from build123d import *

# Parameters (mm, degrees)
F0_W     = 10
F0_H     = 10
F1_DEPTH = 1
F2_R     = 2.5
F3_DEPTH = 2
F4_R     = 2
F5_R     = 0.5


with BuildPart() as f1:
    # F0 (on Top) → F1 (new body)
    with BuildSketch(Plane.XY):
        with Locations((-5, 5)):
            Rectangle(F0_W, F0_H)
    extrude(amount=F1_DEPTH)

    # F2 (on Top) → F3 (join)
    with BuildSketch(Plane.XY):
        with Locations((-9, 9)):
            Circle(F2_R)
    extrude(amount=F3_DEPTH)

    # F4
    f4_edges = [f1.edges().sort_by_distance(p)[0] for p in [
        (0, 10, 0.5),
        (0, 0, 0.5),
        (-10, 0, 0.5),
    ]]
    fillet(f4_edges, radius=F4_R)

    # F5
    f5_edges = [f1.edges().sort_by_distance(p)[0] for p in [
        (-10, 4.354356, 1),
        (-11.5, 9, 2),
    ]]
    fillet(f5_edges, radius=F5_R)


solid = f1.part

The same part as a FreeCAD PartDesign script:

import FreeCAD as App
import Part
import Sketcher
Q = App.Units.Quantity


def edges_at(feature, points):
    """Names of the edges that pass closest to the given points."""
    edges = feature.Shape.Edges
    near = lambda p: min(range(len(edges)), key=lambda i: edges[i].distToShape(Part.Vertex(*p))[0])
    return sorted({f"Edge{near(p) + 1}" for p in points})

doc = App.newDocument("Part")
params = doc.addObject("Spreadsheet::Sheet", "Params")
for row, (alias, value) in enumerate([
    ("sketch1_width", "10 mm"),
    ("pad1_length", "1 mm"),
    ("sketch2_diameter", "5 mm"),
    ("pad2_length", "2 mm"),
    ("fillet_radius", "2 mm"),
    ("fillet2_radius", "0.5 mm"),
], start=1):
    params.set(f"A{row}", alias)
    params.set(f"B{row}", "=" + value)
    params.setAlias(f"B{row}", alias)

body = doc.addObject("PartDesign::Body", "Body")

sketch1 = doc.addObject("Sketcher::SketchObject", "Sketch")
body.addObject(sketch1)
sketch1.AttachmentSupport = (doc.XY_Plane, [""])
sketch1.MapMode = "FlatFace"
sketch1.addGeometry(Part.LineSegment(App.Vector(-10, 10, 0), App.Vector(-10, 0, 0)), False)
sketch1.addGeometry(Part.LineSegment(App.Vector(-10, 0, 0), App.Vector(0, 0, 0)), False)
sketch1.addGeometry(Part.LineSegment(App.Vector(0, 0, 0), App.Vector(0, 10, 0)), False)
sketch1.addGeometry(Part.LineSegment(App.Vector(0, 10, 0), App.Vector(-10, 10, 0)), False)
sketch1.addConstraint(Sketcher.Constraint("Coincident", 0, 2, 1, 1))
sketch1.addConstraint(Sketcher.Constraint("Coincident", 1, 2, 2, 1))
sketch1.addConstraint(Sketcher.Constraint("Coincident", 2, 2, 3, 1))
sketch1.addConstraint(Sketcher.Constraint("Coincident", 3, 2, 0, 1))
sketch1.addConstraint(Sketcher.Constraint("Vertical", 0))
sketch1.addConstraint(Sketcher.Constraint("Horizontal", 1))
sketch1.addConstraint(Sketcher.Constraint("Vertical", 2))
sketch1.addConstraint(Sketcher.Constraint("Horizontal", 3))
sketch1.addConstraint(Sketcher.Constraint("Coincident", 1, 2, -1, 1))
sketch1.addConstraint(Sketcher.Constraint("Equal", 3, 0))
sketch1.addConstraint(Sketcher.Constraint("DistanceX", 1, 1, 1, 2, Q("10 mm")))
sketch1.setExpression("Constraints[10]", "Params.sketch1_width")
pad1 = doc.addObject("PartDesign::Pad", "Pad")
body.addObject(pad1)
pad1.Profile = sketch1
pad1.setExpression("Length", "Params.pad1_length")

sketch2 = doc.addObject("Sketcher::SketchObject", "Sketch001")
body.addObject(sketch2)
sketch2.AttachmentSupport = (doc.XY_Plane, [""])
sketch2.MapMode = "FlatFace"
sketch2.addGeometry(Part.Circle(App.Vector(-9, 9, 0), App.Vector(0, 0, 1), 2.5), False)
sketch2.addConstraint(Sketcher.Constraint("Diameter", 0, Q("5 mm")))
sketch2.addConstraint(Sketcher.Constraint("DistanceX", 0, 3, -1, 1, Q("9 mm")))
sketch2.addConstraint(Sketcher.Constraint("DistanceY", -1, 1, 0, 3, Q("9 mm")))
sketch2.setExpression("Constraints[0]", "Params.sketch2_diameter")
pad2 = doc.addObject("PartDesign::Pad", "Pad001")
body.addObject(pad2)
pad2.Profile = sketch2
pad2.setExpression("Length", "Params.pad2_length")
doc.recompute()

fillet = doc.addObject("PartDesign::Fillet", "Fillet")
body.addObject(fillet)
fillet.Base = (pad2, edges_at(pad2, [(0, 10, 0.5), (0, 0, 0.5), (-10, 0, 0.5)]))
fillet.setExpression("Radius", "Params.fillet_radius")
doc.recompute()

fillet2 = doc.addObject("PartDesign::Fillet", "Fillet001")
body.addObject(fillet2)
fillet2.Base = (fillet, edges_at(fillet, [(-10, 4.354, 1), (-11.5, 9, 2)]))
fillet2.setExpression("Radius", "Params.fillet2_radius")

doc.recompute()
